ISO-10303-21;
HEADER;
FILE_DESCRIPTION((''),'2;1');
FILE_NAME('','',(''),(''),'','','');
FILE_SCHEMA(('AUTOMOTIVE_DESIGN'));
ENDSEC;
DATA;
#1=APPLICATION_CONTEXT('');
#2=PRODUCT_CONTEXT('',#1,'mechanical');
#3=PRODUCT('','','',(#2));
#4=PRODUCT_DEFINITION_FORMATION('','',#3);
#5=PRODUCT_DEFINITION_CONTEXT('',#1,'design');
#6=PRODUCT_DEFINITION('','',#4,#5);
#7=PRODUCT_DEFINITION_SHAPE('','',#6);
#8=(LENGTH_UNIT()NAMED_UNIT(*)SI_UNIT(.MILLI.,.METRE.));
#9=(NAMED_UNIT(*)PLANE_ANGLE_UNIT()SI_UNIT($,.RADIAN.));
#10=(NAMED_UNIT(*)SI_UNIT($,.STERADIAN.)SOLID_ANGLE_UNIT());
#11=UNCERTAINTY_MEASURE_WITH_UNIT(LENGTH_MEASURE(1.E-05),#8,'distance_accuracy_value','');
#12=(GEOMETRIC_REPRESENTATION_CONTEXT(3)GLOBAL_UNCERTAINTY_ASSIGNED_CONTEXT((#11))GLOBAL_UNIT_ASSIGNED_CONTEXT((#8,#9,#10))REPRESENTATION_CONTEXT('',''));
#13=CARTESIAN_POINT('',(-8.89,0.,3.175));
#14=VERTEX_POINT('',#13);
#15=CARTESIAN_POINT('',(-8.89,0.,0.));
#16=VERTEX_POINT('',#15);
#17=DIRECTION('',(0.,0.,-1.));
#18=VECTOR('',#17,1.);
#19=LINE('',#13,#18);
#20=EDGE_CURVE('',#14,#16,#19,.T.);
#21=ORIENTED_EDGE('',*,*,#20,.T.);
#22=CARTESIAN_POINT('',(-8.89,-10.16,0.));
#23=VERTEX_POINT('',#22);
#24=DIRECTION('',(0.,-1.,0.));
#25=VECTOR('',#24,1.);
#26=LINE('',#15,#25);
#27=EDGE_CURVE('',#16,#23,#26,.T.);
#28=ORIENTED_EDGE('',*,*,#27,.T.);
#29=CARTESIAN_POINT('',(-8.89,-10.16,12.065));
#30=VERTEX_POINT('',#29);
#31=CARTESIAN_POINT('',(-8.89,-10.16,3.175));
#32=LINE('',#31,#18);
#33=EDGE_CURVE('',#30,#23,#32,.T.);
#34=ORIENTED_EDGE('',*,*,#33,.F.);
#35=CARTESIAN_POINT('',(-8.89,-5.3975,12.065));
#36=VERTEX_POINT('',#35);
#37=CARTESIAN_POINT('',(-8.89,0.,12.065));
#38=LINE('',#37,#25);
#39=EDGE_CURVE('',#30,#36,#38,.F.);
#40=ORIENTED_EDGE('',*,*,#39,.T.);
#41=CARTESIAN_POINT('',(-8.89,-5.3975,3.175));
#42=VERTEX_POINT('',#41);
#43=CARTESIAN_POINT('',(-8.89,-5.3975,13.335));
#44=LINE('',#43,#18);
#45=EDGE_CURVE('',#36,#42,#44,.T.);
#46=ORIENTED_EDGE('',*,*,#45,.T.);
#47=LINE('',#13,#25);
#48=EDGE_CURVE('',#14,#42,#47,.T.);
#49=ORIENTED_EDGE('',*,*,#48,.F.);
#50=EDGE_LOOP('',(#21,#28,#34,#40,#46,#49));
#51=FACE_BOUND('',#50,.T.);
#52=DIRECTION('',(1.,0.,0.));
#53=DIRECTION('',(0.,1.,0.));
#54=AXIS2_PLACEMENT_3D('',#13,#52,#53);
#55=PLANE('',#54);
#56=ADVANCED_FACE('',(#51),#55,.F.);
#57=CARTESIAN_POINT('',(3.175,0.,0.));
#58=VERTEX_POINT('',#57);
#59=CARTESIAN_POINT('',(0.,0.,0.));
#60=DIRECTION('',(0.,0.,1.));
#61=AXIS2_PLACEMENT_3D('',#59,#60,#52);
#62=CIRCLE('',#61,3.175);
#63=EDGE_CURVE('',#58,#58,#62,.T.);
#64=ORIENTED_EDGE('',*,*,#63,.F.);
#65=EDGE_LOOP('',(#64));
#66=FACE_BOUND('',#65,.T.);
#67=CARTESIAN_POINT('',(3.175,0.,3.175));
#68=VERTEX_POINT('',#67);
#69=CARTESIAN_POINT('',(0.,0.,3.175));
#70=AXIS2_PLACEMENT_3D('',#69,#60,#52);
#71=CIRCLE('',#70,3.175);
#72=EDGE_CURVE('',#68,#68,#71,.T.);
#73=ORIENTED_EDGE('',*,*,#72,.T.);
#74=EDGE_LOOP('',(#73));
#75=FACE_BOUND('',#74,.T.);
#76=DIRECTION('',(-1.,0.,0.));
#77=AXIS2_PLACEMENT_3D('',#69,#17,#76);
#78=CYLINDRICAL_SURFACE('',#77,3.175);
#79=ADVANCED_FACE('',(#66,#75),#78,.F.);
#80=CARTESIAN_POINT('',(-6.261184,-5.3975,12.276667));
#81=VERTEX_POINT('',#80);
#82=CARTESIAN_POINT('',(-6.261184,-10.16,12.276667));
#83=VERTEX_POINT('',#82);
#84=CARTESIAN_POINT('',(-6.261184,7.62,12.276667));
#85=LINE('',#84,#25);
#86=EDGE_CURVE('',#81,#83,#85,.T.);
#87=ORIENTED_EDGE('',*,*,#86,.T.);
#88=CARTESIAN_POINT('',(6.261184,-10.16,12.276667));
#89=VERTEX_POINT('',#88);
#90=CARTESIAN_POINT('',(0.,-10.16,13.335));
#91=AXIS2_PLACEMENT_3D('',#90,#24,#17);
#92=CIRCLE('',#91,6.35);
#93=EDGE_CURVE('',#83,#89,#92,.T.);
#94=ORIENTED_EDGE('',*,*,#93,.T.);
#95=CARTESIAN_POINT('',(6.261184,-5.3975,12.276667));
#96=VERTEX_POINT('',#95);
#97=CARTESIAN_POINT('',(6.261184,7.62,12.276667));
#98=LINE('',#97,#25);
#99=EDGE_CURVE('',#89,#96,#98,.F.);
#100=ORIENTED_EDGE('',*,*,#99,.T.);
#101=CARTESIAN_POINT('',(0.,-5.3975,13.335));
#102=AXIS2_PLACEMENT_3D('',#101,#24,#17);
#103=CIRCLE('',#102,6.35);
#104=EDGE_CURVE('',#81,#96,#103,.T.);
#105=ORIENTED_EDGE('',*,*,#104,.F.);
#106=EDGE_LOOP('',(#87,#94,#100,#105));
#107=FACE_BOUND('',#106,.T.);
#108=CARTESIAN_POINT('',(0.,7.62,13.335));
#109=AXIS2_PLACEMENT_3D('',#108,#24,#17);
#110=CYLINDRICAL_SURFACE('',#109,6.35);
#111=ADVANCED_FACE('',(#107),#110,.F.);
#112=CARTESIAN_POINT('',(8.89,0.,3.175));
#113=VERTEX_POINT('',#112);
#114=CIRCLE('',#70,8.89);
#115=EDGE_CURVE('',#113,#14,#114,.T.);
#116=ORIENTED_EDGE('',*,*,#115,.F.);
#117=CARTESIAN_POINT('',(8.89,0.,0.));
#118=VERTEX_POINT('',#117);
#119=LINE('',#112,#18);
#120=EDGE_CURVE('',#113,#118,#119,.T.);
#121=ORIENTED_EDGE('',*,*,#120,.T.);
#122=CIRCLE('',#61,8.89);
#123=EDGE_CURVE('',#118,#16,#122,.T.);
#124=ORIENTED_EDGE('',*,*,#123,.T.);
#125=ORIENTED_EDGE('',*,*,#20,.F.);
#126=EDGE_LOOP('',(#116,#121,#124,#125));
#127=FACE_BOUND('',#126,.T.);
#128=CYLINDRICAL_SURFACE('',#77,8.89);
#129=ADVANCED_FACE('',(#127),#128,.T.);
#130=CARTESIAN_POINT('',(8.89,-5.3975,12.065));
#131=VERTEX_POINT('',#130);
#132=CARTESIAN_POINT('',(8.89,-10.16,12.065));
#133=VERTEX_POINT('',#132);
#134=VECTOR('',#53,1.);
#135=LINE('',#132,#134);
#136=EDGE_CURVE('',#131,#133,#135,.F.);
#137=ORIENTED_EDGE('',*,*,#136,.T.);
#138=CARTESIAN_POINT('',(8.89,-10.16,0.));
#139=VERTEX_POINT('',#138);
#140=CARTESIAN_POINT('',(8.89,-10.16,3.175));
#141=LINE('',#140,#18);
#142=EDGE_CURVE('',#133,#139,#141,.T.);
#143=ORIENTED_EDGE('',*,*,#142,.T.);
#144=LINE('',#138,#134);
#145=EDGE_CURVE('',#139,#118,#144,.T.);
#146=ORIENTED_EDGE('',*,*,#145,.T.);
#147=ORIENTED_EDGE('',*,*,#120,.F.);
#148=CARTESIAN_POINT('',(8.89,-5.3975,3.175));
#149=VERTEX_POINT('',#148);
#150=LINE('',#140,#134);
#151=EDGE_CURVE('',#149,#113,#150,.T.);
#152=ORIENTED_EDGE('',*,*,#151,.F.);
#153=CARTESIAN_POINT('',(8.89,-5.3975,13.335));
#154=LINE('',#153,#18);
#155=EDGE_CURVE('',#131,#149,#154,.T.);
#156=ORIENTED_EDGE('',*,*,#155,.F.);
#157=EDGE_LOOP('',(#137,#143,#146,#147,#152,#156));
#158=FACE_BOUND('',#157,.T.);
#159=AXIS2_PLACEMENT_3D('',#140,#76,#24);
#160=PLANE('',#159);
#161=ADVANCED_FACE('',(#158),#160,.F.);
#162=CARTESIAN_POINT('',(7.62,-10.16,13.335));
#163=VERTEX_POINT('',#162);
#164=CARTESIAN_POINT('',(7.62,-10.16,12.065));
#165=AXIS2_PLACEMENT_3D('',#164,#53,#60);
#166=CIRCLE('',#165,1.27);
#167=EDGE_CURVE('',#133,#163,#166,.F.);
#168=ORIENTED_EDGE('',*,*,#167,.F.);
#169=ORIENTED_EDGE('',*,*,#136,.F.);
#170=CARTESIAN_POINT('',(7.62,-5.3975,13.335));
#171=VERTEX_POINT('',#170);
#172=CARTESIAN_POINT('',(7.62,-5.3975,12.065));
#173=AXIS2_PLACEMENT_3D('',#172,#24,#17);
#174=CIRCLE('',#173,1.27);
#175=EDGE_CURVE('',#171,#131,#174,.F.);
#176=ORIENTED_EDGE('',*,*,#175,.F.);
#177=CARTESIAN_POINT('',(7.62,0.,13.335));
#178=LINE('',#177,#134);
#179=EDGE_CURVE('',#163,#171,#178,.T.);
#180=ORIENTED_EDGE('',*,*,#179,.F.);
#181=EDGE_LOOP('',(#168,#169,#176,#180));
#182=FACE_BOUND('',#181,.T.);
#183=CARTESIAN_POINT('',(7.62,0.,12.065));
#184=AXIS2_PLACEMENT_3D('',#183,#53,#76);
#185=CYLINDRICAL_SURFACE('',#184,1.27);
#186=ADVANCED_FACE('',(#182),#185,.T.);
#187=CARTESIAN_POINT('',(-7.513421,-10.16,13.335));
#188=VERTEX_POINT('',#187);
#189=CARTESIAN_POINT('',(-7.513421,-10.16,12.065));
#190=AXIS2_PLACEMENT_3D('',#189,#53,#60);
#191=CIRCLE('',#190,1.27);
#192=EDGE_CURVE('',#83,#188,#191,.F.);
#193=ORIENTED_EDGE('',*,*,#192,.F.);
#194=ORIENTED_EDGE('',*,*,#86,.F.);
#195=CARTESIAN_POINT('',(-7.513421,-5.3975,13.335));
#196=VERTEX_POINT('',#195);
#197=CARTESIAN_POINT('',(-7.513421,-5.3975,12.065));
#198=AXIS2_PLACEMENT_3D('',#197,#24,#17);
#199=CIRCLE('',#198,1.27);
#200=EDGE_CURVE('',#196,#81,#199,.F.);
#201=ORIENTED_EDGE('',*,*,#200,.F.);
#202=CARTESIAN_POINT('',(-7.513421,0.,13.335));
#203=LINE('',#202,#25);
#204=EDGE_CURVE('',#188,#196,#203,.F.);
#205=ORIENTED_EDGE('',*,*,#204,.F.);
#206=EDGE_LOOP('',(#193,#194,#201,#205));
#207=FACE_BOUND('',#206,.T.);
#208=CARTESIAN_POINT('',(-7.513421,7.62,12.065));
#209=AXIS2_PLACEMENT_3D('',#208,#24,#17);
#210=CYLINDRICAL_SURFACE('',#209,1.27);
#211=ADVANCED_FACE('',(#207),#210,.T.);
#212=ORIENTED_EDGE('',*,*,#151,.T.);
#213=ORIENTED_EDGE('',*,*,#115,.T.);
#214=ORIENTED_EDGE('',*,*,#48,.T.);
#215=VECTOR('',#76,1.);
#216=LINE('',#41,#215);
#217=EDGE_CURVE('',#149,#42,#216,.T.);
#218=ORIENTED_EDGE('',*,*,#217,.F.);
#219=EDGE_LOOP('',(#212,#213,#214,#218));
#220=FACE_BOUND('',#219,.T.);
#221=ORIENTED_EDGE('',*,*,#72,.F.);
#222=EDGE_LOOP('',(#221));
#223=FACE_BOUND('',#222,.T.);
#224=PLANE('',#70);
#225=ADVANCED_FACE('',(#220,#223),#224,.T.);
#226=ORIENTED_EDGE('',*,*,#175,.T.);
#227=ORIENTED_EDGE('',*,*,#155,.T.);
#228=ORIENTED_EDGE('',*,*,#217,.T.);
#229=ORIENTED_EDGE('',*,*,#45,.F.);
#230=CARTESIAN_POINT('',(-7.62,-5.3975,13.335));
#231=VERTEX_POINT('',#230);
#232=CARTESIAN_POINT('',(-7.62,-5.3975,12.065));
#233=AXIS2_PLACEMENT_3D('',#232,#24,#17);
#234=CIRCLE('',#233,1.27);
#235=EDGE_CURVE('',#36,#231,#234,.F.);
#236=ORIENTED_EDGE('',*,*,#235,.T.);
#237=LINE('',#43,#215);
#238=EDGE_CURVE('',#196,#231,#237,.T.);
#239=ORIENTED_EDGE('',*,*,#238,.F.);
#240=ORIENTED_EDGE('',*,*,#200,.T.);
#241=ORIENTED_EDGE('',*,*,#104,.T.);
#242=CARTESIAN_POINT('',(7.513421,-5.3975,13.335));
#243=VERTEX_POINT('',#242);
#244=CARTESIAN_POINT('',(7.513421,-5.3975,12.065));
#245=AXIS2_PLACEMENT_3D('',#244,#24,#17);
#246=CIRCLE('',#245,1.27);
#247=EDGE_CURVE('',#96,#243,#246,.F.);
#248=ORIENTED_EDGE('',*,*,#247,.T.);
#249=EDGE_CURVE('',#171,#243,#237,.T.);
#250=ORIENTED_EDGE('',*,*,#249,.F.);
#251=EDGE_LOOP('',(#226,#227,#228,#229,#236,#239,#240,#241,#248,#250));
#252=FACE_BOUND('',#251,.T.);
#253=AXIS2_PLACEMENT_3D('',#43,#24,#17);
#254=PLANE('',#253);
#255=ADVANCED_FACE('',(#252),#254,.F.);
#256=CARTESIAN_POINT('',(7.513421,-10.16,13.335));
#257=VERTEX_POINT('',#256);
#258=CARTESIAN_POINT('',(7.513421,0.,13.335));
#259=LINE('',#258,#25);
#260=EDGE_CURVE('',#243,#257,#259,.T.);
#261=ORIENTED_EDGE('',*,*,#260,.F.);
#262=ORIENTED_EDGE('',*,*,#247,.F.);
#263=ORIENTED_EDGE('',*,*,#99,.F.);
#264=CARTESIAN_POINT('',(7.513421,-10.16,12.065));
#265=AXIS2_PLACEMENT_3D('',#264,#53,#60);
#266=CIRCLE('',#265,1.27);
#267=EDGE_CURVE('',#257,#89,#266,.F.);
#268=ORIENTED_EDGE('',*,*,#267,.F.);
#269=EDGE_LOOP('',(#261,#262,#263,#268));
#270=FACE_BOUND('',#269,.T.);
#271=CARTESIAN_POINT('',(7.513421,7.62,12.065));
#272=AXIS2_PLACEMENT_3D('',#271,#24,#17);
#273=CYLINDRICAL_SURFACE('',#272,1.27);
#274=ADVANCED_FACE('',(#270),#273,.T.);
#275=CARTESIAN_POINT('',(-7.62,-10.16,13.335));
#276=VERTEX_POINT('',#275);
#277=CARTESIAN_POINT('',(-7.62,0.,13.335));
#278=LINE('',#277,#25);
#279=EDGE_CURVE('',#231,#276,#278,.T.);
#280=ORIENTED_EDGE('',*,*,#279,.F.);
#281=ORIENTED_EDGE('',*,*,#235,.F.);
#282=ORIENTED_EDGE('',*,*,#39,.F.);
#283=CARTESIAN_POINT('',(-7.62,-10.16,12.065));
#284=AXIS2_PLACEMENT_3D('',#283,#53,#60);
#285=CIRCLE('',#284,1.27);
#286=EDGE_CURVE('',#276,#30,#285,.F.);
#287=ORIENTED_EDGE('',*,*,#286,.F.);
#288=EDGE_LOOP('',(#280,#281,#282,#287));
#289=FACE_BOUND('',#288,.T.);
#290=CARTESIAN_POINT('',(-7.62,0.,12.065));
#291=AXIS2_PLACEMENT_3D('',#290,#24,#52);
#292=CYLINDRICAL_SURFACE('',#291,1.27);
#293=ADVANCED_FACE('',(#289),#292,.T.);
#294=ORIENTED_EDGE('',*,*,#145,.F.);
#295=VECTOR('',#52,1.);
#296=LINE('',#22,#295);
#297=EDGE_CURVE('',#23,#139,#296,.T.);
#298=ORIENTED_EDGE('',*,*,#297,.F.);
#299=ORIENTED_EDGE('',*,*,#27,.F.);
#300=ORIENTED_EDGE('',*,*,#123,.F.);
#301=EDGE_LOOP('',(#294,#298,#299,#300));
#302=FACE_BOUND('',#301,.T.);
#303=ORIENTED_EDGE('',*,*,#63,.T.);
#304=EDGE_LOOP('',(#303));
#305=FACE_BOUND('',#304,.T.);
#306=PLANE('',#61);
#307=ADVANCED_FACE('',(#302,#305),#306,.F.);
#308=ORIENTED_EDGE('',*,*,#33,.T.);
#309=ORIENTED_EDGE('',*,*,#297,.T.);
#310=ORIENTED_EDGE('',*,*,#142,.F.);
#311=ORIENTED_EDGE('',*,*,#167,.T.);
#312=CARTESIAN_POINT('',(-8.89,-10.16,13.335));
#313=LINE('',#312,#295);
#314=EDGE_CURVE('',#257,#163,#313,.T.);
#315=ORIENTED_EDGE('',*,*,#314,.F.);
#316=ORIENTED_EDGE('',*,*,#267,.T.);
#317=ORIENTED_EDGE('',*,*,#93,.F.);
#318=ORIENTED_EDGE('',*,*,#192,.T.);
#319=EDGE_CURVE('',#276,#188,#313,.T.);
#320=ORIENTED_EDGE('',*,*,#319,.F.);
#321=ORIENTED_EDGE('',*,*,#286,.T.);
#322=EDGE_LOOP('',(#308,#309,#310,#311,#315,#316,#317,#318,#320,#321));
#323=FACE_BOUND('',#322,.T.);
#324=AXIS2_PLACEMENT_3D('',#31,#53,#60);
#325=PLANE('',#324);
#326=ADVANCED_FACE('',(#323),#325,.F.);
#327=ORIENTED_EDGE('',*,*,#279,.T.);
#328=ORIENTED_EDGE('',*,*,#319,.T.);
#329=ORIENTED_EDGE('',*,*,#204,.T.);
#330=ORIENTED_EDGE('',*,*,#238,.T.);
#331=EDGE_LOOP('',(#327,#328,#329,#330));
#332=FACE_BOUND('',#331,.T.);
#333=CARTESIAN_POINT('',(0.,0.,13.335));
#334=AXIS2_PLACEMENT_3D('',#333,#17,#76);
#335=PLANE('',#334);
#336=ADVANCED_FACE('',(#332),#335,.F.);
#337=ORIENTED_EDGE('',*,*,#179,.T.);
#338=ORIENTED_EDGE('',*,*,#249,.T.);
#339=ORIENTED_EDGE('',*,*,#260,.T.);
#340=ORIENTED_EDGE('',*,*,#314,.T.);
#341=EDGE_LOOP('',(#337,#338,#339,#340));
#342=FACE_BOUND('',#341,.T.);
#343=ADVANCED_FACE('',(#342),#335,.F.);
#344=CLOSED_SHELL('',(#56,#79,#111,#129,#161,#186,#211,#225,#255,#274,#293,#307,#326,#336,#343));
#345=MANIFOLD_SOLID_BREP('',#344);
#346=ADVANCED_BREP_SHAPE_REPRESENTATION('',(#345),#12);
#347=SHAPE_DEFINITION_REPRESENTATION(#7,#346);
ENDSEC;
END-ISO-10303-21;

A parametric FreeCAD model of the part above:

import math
import FreeCAD as App
import Part
import Sketcher
Q = App.Units.Quantity


def edges_at(feature, points):
    """Names of the edges that pass closest to the given points."""
    edges = feature.Shape.Edges
    near = lambda p: min(range(len(edges)), key=lambda i: edges[i].distToShape(Part.Vertex(*p))[0])
    return sorted({f"Edge{near(p) + 1}" for p in points})

doc = App.newDocument("Part")
params = doc.addObject("Spreadsheet::Sheet", "Params")
for row, (alias, value) in enumerate([
    ("sketch1_diameter", "0.25 in"),
    ("sketch1_radius", "0.35 in"),
    ("sketch1_height", "0.4 in"),
    ("pad1_length", "0.125 in"),
    ("sketch2_width", "0.7 in"),
    ("sketch2_height", "0.1875 in"),
    ("pad2_length", "0.4 in"),
    ("sketch3_diameter", "0.5 in"),
    ("pocket1_length", "0.7 in"),
    ("fillet_radius", "0.05 in"),
    ("fillet2_radius", "0.05 in"),
], start=1):
    params.set(f"A{row}", alias)
    params.set(f"B{row}", "=" + value)
    params.setAlias(f"B{row}", alias)

body = doc.addObject("PartDesign::Body", "Body")

sketch1 = doc.addObject("Sketcher::SketchObject", "Sketch")
body.addObject(sketch1)
sketch1.AttachmentSupport = (doc.XY_Plane, [""])
sketch1.MapMode = "FlatFace"
sketch1.addGeometry([
    Part.LineSegment(App.Vector(-8.89, 0, 0), App.Vector(-8.89, -10.16, 0)),
    Part.LineSegment(App.Vector(-8.89, -10.16, 0), App.Vector(8.89, -10.16, 0)),
    Part.LineSegment(App.Vector(8.89, -10.16, 0), App.Vector(8.89, 0, 0)),
    Part.ArcOfCircle(Part.Circle(App.Vector(0, 0, 0), App.Vector(0, 0, 1), 8.89), math.radians(0), math.radians(180)),
    Part.Circle(App.Vector(0, 0, 0), App.Vector(0, 0, 1), 3.175),
], False)
sketch1.addConstraint([
    Sketcher.Constraint("Coincident", 0, 2, 1, 1),
    Sketcher.Constraint("Coincident", 1, 2, 2, 1),
    Sketcher.Constraint("Tangent", 2, 2, 3, 1),
    Sketcher.Constraint("Tangent", 3, 2, 0, 1),
    Sketcher.Constraint("Vertical", 0),
    Sketcher.Constraint("Horizontal", 1),
    Sketcher.Constraint("Vertical", 2),
    Sketcher.Constraint("Coincident", 3, 3, -1, 1),
    Sketcher.Constraint("Coincident", 4, 3, -1, 1),
    Sketcher.Constraint("Diameter", 4, Q("0.25 in")),
    Sketcher.Constraint("Radius", 3, Q("0.35 in")),
    Sketcher.Constraint("DistanceY", 0, 2, 0, 1, Q("0.4 in")),
])
sketch1.setExpression("Constraints[9]", "Params.sketch1_diameter")
sketch1.setExpression("Constraints[10]", "Params.sketch1_radius")
sketch1.setExpression("Constraints[11]", "Params.sketch1_height")
pad1 = doc.addObject("PartDesign::Pad", "Pad")
body.addObject(pad1)
pad1.Profile = sketch1
pad1.setExpression("Length", "Params.pad1_length")

sketch2 = doc.addObject("Sketcher::SketchObject", "Sketch001")
body.addObject(sketch2)
sketch2.AttachmentSupport = (doc.XY_Plane, [""])
sketch2.MapMode = "FlatFace"
sketch2.AttachmentOffset = App.Placement(App.Vector(0, 0, 0.125 * 25.4), App.Rotation())
sketch2.addGeometry([
    Part.LineSegment(App.Vector(-8.89, -5.3975, 0), App.Vector(-8.89, -10.16, 0)),
    Part.LineSegment(App.Vector(-8.89, -10.16, 0), App.Vector(8.89, -10.16, 0)),
    Part.LineSegment(App.Vector(8.89, -10.16, 0), App.Vector(8.89, -5.3975, 0)),
    Part.LineSegment(App.Vector(8.89, -5.3975, 0), App.Vector(-8.89, -5.3975, 0)),
], False)
sketch2.addConstraint([
    Sketcher.Constraint("Coincident", 0, 2, 1, 1),
    Sketcher.Constraint("Coincident", 1, 2, 2, 1),
    Sketcher.Constraint("Coincident", 2, 2, 3, 1),
    Sketcher.Constraint("Coincident", 3, 2, 0, 1),
    Sketcher.Constraint("Vertical", 0),
    Sketcher.Constraint("Horizontal", 1),
    Sketcher.Constraint("Vertical", 2),
    Sketcher.Constraint("Horizontal", 3),
    Sketcher.Constraint("DistanceX", 1, 1, 1, 2, Q("0.7 in")),
    Sketcher.Constraint("DistanceY", 0, 2, -1, 1, Q("0.4 in")),
    Sketcher.Constraint("DistanceY", 0, 2, 0, 1, Q("0.1875 in")),
    Sketcher.Constraint("DistanceX", 0, 2, -1, 1, Q("0.35 in")),
])
sketch2.setExpression("Constraints[8]", "Params.sketch2_width")
sketch2.setExpression("Constraints[10]", "Params.sketch2_height")
pad2 = doc.addObject("PartDesign::Pad", "Pad001")
body.addObject(pad2)
pad2.Profile = sketch2
pad2.setExpression("Length", "Params.pad2_length")

sketch3 = doc.addObject("Sketcher::SketchObject", "Sketch002")
body.addObject(sketch3)
sketch3.AttachmentSupport = (doc.XZ_Plane, [""])
sketch3.MapMode = "FlatFace"
sketch3.AttachmentOffset = App.Placement(App.Vector(0, 0, 0.4 * 25.4), App.Rotation())
sketch3.addGeometry(Part.Circle(App.Vector(0, 13.335, 0), App.Vector(0, 0, 1), 6.35), False)
sketch3.addConstraint([
    Sketcher.Constraint("PointOnObject", 0, 3, -2),
    Sketcher.Constraint("Diameter", 0, Q("0.5 in")),
    Sketcher.Constraint("DistanceY", -1, 1, 0, 3, Q("0.525 in")),
])
sketch3.setExpression("Constraints[1]", "Params.sketch3_diameter")
pocket1 = doc.addObject("PartDesign::Pocket", "Pocket")
body.addObject(pocket1)
pocket1.Profile = sketch3
pocket1.setExpression("Length", "Params.pocket1_length")
doc.recompute()

fillet = doc.addObject("PartDesign::Fillet", "Fillet")
body.addObject(fillet)
fillet.Base = (pocket1, edges_at(pocket1, [(-8.89, -7.779, 13.335), (8.89, -7.779, 13.335)]))
fillet.setExpression("Radius", "Params.fillet_radius")
doc.recompute()

fillet2 = doc.addObject("PartDesign::Fillet", "Fillet001")
body.addObject(fillet2)
fillet2.Base = (fillet, edges_at(fillet, [(-6.35, -7.779, 13.335), (6.35, -7.779, 13.335)]))
fillet2.setExpression("Radius", "Params.fillet2_radius")

doc.recompute()
